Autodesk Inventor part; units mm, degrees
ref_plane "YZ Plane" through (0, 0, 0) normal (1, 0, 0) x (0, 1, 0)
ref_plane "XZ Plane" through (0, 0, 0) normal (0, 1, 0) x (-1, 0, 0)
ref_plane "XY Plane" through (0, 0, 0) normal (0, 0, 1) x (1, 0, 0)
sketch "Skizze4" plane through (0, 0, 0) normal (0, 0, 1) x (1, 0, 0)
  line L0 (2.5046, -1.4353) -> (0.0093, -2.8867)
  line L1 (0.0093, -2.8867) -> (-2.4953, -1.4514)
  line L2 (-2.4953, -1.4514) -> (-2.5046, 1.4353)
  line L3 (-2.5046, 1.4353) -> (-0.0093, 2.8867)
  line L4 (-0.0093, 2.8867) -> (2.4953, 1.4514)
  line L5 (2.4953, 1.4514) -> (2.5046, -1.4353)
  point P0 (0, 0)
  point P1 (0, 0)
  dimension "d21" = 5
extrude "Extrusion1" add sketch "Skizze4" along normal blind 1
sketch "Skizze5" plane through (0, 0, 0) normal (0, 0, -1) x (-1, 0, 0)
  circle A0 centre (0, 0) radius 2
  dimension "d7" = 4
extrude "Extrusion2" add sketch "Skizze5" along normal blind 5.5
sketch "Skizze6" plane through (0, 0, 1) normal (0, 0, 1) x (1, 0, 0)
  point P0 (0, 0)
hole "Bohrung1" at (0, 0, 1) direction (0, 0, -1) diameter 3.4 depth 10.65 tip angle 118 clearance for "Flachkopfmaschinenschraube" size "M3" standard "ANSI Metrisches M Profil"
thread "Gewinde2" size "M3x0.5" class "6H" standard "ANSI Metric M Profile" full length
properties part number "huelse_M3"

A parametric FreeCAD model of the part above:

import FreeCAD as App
import Part
import Sketcher
Q = App.Units.Quantity

doc = App.newDocument("Part")
body = doc.addObject("PartDesign::Body", "Body")

sketch1 = body.newObject("Sketcher::SketchObject", "Sketch")
sketch1.AttachmentSupport = (doc.getObject("XY_Plane"), [""])
sketch1.MapMode = "FlatFace"
sketch1.addGeometry([
    Part.LineSegment(App.Vector(0, -2.9, 0), App.Vector(2.5, -1.4, 0)),
    Part.LineSegment(App.Vector(2.5, -1.4, 0), App.Vector(2.5, 1.5, 0)),
    Part.LineSegment(App.Vector(2.5, 1.5, 0), App.Vector(0, 2.9, 0)),
    Part.LineSegment(App.Vector(0, 2.9, 0), App.Vector(-2.5, 1.4, 0)),
    Part.LineSegment(App.Vector(-2.5, 1.4, 0), App.Vector(-2.5, -1.5, 0)),
    Part.LineSegment(App.Vector(-2.5, -1.5, 0), App.Vector(0, -2.9, 0)),
], False)
sketch1.addConstraint([
    Sketcher.Constraint("Coincident", 0, 2, 1, 1),
    Sketcher.Constraint("Coincident", 1, 2, 2, 1),
    Sketcher.Constraint("Coincident", 2, 2, 3, 1),
    Sketcher.Constraint("Coincident", 3, 2, 4, 1),
    Sketcher.Constraint("Coincident", 4, 2, 5, 1),
    Sketcher.Constraint("Coincident", 5, 2, 0, 1),
    Sketcher.Constraint("Symmetric", 0, 2, 3, 2, -1, 1),
    Sketcher.Constraint("Symmetric", 1, 2, 4, 2, -1, 1),
    Sketcher.Constraint("Symmetric", 2, 2, 5, 2, -1, 1),
    Sketcher.Constraint("Equal", 0, 1),
    Sketcher.Constraint("Equal", 1, 2),
    Sketcher.Constraint("DistanceX", 3, 2, 1, 2, Q("5 mm")),
    Sketcher.Constraint("DistanceX", 2, 2, 0, 2, Q("2.514 mm")),
    Sketcher.Constraint("DistanceY", 0, 2, 2, 2, Q("4.322 mm")),
    Sketcher.Constraint("DistanceY", 3, 2, 1, 2, Q("0.016 mm")),
])
pad1 = body.newObject("PartDesign::Pad", "Pad")
pad1.Profile = sketch1
pad1.Length = 1

sketch2 = body.newObject("Sketcher::SketchObject", "Sketch001")
sketch2.AttachmentSupport = (doc.getObject("XY_Plane"), [""])
sketch2.MapMode = "FlatFace"
sketch2.addGeometry(Part.Circle(App.Vector(0, 0, 0), App.Vector(0, 0, 1), 2), False)
sketch2.addConstraint([
    Sketcher.Constraint("Coincident", 0, 3, -1, 1),
    Sketcher.Constraint("Diameter", 0, Q("4 mm")),
])
pad2 = body.newObject("PartDesign::Pad", "Pad001")
pad2.Profile = sketch2
pad2.Length = 5.5
pad2.Reversed = True

sketch3 = body.newObject("Sketcher::SketchObject", "Sketch002")
sketch3.AttachmentSupport = (doc.getObject("XY_Plane"), [""])
sketch3.MapMode = "FlatFace"
sketch3.AttachmentOffset = App.Placement(App.Vector(0, 0, 1), App.Rotation())
sketch3.addGeometry(Part.Circle(App.Vector(0, 0, 0), App.Vector(0, 0, 1), 1.7), False)
sketch3.addConstraint([
    Sketcher.Constraint("Coincident", 0, 3, -1, 1),
    Sketcher.Constraint("Diameter", 0, Q("3.4 mm")),
])
doc.recompute()
hole = body.newObject("PartDesign::Hole", "Hole")
hole.Profile = sketch3
hole.ThreadType = "None"
hole.Diameter = 3.4
hole.DepthType = "Dimension"
hole.Depth = 10.65
hole.DrillPoint = "Angled"
hole.DrillPointAngle = 118

doc.recompute()
